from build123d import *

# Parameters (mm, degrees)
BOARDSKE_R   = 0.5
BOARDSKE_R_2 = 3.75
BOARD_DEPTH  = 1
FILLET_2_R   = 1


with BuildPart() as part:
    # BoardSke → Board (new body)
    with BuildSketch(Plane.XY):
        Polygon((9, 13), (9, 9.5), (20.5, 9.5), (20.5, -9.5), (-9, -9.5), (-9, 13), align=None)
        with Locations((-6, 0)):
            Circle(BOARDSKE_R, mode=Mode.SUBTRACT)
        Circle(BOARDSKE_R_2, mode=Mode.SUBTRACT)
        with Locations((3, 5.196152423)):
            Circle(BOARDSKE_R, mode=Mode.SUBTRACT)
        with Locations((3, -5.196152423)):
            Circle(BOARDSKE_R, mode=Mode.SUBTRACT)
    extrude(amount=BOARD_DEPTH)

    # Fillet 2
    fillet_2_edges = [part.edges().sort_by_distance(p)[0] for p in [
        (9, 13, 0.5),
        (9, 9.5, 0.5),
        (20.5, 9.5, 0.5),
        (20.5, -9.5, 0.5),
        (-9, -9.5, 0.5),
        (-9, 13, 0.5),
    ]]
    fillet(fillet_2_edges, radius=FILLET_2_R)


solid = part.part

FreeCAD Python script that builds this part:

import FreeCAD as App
import Part
import Sketcher

V = App.Vector
Q = App.Units.Quantity


def edges_at(feature, points):
    """Names of the edges that pass closest to the given points."""
    edges = feature.Shape.Edges
    near = lambda p: min(range(len(edges)), key=lambda i: edges[i].distToShape(Part.Vertex(*p))[0])
    return sorted({f"Edge{near(p) + 1}" for p in points})


def add_polygon(sketch, points):
    """Adds a closed chain of lines whose ends are joined by coincident constraints."""
    first, n = sketch.GeometryCount, len(points)
    for a, b in zip(points, points[1:] + points[:1]):
        sketch.addGeometry(Part.LineSegment(App.Vector(*a, 0), App.Vector(*b, 0)), False)
    for i in range(n):
        sketch.addConstraint(Sketcher.Constraint("Coincident", first + i, 2, first + (i + 1) % n, 1))

doc = App.newDocument("Part")
body = doc.addObject("PartDesign::Body", "Body")

sketch1 = body.newObject("Sketcher::SketchObject", "Sketch")
sketch1.AttachmentSupport = (doc.getObject("XY_Plane"), [""])
sketch1.MapMode = "FlatFace"
add_polygon(sketch1, [(9, 9.5), (9, 13), (-9, 13), (-9, -9.5), (20.5, -9.5), (20.5, 9.5)])
sketch1.addGeometry(Part.Circle(V(3, -5.2, 0), V(0, 0, 1), 0.5), False)
sketch1.addGeometry(Part.Circle(V(0, 0, 0), V(0, 0, 1), 3.8), False)
sketch1.addGeometry(Part.Circle(V(3, 5.2, 0), V(0, 0, 1), 0.5), False)
sketch1.addGeometry(Part.Circle(V(-6, 0, 0), V(0, 0, 1), 0.5), False)
sketch1.addConstraint([
    Sketcher.Constraint("Vertical", 0),
    Sketcher.Constraint("Horizontal", 1),
    Sketcher.Constraint("Vertical", 2),
    Sketcher.Constraint("Horizontal", 3),
    Sketcher.Constraint("Vertical", 4),
    Sketcher.Constraint("Horizontal", 5),
    Sketcher.Constraint("Coincident", 7, 3, -1, 1),
    Sketcher.Constraint("Equal", 6, 8),
    Sketcher.Constraint("Equal", 8, 9),
    Sketcher.Constraint("Symmetric", 2, 2, 5, 2, -1, 1),
    Sketcher.Constraint("Symmetric", 6, 3, 8, 3, -1),
    Sketcher.Constraint("PointOnObject", 9, 3, -1),
    Sketcher.Constraint("Diameter", 6, Q("1 mm")),
    Sketcher.Constraint("Diameter", 7, Q("7.5 mm")),
    Sketcher.Constraint("DistanceX", 1, 2, 1, 1, Q("18 mm")),
    Sketcher.Constraint("DistanceY", 4, 1, 4, 2, Q("19 mm")),
    Sketcher.Constraint("DistanceX", 3, 1, 3, 2, Q("29.5 mm")),
    Sketcher.Constraint("DistanceY", 0, 1, 0, 2, Q("3.5 mm")),
    Sketcher.Constraint("DistanceX", -1, 1, 6, 3, Q("3 mm")),
    Sketcher.Constraint("DistanceX", 9, 3, -1, 1, Q("6 mm")),
    Sketcher.Constraint("DistanceY", 6, 3, -1, 1, Q("5.196152 mm")),
])
pad1 = body.newObject("PartDesign::Pad", "Pad")
pad1.Profile = sketch1
pad1.Length = 1
doc.recompute()

fillet = body.newObject("PartDesign::Fillet", "Fillet")
fillet.Base = (pad1, edges_at(pad1, [
    (9, 13, 0.5),
    (9, 9.5, 0.5),
    (20.5, 9.5, 0.5),
    (20.5, -9.5, 0.5),
    (-9, -9.5, 0.5),
    (-9, 13, 0.5),
]))
fillet.Radius = 1

doc.recompute()
